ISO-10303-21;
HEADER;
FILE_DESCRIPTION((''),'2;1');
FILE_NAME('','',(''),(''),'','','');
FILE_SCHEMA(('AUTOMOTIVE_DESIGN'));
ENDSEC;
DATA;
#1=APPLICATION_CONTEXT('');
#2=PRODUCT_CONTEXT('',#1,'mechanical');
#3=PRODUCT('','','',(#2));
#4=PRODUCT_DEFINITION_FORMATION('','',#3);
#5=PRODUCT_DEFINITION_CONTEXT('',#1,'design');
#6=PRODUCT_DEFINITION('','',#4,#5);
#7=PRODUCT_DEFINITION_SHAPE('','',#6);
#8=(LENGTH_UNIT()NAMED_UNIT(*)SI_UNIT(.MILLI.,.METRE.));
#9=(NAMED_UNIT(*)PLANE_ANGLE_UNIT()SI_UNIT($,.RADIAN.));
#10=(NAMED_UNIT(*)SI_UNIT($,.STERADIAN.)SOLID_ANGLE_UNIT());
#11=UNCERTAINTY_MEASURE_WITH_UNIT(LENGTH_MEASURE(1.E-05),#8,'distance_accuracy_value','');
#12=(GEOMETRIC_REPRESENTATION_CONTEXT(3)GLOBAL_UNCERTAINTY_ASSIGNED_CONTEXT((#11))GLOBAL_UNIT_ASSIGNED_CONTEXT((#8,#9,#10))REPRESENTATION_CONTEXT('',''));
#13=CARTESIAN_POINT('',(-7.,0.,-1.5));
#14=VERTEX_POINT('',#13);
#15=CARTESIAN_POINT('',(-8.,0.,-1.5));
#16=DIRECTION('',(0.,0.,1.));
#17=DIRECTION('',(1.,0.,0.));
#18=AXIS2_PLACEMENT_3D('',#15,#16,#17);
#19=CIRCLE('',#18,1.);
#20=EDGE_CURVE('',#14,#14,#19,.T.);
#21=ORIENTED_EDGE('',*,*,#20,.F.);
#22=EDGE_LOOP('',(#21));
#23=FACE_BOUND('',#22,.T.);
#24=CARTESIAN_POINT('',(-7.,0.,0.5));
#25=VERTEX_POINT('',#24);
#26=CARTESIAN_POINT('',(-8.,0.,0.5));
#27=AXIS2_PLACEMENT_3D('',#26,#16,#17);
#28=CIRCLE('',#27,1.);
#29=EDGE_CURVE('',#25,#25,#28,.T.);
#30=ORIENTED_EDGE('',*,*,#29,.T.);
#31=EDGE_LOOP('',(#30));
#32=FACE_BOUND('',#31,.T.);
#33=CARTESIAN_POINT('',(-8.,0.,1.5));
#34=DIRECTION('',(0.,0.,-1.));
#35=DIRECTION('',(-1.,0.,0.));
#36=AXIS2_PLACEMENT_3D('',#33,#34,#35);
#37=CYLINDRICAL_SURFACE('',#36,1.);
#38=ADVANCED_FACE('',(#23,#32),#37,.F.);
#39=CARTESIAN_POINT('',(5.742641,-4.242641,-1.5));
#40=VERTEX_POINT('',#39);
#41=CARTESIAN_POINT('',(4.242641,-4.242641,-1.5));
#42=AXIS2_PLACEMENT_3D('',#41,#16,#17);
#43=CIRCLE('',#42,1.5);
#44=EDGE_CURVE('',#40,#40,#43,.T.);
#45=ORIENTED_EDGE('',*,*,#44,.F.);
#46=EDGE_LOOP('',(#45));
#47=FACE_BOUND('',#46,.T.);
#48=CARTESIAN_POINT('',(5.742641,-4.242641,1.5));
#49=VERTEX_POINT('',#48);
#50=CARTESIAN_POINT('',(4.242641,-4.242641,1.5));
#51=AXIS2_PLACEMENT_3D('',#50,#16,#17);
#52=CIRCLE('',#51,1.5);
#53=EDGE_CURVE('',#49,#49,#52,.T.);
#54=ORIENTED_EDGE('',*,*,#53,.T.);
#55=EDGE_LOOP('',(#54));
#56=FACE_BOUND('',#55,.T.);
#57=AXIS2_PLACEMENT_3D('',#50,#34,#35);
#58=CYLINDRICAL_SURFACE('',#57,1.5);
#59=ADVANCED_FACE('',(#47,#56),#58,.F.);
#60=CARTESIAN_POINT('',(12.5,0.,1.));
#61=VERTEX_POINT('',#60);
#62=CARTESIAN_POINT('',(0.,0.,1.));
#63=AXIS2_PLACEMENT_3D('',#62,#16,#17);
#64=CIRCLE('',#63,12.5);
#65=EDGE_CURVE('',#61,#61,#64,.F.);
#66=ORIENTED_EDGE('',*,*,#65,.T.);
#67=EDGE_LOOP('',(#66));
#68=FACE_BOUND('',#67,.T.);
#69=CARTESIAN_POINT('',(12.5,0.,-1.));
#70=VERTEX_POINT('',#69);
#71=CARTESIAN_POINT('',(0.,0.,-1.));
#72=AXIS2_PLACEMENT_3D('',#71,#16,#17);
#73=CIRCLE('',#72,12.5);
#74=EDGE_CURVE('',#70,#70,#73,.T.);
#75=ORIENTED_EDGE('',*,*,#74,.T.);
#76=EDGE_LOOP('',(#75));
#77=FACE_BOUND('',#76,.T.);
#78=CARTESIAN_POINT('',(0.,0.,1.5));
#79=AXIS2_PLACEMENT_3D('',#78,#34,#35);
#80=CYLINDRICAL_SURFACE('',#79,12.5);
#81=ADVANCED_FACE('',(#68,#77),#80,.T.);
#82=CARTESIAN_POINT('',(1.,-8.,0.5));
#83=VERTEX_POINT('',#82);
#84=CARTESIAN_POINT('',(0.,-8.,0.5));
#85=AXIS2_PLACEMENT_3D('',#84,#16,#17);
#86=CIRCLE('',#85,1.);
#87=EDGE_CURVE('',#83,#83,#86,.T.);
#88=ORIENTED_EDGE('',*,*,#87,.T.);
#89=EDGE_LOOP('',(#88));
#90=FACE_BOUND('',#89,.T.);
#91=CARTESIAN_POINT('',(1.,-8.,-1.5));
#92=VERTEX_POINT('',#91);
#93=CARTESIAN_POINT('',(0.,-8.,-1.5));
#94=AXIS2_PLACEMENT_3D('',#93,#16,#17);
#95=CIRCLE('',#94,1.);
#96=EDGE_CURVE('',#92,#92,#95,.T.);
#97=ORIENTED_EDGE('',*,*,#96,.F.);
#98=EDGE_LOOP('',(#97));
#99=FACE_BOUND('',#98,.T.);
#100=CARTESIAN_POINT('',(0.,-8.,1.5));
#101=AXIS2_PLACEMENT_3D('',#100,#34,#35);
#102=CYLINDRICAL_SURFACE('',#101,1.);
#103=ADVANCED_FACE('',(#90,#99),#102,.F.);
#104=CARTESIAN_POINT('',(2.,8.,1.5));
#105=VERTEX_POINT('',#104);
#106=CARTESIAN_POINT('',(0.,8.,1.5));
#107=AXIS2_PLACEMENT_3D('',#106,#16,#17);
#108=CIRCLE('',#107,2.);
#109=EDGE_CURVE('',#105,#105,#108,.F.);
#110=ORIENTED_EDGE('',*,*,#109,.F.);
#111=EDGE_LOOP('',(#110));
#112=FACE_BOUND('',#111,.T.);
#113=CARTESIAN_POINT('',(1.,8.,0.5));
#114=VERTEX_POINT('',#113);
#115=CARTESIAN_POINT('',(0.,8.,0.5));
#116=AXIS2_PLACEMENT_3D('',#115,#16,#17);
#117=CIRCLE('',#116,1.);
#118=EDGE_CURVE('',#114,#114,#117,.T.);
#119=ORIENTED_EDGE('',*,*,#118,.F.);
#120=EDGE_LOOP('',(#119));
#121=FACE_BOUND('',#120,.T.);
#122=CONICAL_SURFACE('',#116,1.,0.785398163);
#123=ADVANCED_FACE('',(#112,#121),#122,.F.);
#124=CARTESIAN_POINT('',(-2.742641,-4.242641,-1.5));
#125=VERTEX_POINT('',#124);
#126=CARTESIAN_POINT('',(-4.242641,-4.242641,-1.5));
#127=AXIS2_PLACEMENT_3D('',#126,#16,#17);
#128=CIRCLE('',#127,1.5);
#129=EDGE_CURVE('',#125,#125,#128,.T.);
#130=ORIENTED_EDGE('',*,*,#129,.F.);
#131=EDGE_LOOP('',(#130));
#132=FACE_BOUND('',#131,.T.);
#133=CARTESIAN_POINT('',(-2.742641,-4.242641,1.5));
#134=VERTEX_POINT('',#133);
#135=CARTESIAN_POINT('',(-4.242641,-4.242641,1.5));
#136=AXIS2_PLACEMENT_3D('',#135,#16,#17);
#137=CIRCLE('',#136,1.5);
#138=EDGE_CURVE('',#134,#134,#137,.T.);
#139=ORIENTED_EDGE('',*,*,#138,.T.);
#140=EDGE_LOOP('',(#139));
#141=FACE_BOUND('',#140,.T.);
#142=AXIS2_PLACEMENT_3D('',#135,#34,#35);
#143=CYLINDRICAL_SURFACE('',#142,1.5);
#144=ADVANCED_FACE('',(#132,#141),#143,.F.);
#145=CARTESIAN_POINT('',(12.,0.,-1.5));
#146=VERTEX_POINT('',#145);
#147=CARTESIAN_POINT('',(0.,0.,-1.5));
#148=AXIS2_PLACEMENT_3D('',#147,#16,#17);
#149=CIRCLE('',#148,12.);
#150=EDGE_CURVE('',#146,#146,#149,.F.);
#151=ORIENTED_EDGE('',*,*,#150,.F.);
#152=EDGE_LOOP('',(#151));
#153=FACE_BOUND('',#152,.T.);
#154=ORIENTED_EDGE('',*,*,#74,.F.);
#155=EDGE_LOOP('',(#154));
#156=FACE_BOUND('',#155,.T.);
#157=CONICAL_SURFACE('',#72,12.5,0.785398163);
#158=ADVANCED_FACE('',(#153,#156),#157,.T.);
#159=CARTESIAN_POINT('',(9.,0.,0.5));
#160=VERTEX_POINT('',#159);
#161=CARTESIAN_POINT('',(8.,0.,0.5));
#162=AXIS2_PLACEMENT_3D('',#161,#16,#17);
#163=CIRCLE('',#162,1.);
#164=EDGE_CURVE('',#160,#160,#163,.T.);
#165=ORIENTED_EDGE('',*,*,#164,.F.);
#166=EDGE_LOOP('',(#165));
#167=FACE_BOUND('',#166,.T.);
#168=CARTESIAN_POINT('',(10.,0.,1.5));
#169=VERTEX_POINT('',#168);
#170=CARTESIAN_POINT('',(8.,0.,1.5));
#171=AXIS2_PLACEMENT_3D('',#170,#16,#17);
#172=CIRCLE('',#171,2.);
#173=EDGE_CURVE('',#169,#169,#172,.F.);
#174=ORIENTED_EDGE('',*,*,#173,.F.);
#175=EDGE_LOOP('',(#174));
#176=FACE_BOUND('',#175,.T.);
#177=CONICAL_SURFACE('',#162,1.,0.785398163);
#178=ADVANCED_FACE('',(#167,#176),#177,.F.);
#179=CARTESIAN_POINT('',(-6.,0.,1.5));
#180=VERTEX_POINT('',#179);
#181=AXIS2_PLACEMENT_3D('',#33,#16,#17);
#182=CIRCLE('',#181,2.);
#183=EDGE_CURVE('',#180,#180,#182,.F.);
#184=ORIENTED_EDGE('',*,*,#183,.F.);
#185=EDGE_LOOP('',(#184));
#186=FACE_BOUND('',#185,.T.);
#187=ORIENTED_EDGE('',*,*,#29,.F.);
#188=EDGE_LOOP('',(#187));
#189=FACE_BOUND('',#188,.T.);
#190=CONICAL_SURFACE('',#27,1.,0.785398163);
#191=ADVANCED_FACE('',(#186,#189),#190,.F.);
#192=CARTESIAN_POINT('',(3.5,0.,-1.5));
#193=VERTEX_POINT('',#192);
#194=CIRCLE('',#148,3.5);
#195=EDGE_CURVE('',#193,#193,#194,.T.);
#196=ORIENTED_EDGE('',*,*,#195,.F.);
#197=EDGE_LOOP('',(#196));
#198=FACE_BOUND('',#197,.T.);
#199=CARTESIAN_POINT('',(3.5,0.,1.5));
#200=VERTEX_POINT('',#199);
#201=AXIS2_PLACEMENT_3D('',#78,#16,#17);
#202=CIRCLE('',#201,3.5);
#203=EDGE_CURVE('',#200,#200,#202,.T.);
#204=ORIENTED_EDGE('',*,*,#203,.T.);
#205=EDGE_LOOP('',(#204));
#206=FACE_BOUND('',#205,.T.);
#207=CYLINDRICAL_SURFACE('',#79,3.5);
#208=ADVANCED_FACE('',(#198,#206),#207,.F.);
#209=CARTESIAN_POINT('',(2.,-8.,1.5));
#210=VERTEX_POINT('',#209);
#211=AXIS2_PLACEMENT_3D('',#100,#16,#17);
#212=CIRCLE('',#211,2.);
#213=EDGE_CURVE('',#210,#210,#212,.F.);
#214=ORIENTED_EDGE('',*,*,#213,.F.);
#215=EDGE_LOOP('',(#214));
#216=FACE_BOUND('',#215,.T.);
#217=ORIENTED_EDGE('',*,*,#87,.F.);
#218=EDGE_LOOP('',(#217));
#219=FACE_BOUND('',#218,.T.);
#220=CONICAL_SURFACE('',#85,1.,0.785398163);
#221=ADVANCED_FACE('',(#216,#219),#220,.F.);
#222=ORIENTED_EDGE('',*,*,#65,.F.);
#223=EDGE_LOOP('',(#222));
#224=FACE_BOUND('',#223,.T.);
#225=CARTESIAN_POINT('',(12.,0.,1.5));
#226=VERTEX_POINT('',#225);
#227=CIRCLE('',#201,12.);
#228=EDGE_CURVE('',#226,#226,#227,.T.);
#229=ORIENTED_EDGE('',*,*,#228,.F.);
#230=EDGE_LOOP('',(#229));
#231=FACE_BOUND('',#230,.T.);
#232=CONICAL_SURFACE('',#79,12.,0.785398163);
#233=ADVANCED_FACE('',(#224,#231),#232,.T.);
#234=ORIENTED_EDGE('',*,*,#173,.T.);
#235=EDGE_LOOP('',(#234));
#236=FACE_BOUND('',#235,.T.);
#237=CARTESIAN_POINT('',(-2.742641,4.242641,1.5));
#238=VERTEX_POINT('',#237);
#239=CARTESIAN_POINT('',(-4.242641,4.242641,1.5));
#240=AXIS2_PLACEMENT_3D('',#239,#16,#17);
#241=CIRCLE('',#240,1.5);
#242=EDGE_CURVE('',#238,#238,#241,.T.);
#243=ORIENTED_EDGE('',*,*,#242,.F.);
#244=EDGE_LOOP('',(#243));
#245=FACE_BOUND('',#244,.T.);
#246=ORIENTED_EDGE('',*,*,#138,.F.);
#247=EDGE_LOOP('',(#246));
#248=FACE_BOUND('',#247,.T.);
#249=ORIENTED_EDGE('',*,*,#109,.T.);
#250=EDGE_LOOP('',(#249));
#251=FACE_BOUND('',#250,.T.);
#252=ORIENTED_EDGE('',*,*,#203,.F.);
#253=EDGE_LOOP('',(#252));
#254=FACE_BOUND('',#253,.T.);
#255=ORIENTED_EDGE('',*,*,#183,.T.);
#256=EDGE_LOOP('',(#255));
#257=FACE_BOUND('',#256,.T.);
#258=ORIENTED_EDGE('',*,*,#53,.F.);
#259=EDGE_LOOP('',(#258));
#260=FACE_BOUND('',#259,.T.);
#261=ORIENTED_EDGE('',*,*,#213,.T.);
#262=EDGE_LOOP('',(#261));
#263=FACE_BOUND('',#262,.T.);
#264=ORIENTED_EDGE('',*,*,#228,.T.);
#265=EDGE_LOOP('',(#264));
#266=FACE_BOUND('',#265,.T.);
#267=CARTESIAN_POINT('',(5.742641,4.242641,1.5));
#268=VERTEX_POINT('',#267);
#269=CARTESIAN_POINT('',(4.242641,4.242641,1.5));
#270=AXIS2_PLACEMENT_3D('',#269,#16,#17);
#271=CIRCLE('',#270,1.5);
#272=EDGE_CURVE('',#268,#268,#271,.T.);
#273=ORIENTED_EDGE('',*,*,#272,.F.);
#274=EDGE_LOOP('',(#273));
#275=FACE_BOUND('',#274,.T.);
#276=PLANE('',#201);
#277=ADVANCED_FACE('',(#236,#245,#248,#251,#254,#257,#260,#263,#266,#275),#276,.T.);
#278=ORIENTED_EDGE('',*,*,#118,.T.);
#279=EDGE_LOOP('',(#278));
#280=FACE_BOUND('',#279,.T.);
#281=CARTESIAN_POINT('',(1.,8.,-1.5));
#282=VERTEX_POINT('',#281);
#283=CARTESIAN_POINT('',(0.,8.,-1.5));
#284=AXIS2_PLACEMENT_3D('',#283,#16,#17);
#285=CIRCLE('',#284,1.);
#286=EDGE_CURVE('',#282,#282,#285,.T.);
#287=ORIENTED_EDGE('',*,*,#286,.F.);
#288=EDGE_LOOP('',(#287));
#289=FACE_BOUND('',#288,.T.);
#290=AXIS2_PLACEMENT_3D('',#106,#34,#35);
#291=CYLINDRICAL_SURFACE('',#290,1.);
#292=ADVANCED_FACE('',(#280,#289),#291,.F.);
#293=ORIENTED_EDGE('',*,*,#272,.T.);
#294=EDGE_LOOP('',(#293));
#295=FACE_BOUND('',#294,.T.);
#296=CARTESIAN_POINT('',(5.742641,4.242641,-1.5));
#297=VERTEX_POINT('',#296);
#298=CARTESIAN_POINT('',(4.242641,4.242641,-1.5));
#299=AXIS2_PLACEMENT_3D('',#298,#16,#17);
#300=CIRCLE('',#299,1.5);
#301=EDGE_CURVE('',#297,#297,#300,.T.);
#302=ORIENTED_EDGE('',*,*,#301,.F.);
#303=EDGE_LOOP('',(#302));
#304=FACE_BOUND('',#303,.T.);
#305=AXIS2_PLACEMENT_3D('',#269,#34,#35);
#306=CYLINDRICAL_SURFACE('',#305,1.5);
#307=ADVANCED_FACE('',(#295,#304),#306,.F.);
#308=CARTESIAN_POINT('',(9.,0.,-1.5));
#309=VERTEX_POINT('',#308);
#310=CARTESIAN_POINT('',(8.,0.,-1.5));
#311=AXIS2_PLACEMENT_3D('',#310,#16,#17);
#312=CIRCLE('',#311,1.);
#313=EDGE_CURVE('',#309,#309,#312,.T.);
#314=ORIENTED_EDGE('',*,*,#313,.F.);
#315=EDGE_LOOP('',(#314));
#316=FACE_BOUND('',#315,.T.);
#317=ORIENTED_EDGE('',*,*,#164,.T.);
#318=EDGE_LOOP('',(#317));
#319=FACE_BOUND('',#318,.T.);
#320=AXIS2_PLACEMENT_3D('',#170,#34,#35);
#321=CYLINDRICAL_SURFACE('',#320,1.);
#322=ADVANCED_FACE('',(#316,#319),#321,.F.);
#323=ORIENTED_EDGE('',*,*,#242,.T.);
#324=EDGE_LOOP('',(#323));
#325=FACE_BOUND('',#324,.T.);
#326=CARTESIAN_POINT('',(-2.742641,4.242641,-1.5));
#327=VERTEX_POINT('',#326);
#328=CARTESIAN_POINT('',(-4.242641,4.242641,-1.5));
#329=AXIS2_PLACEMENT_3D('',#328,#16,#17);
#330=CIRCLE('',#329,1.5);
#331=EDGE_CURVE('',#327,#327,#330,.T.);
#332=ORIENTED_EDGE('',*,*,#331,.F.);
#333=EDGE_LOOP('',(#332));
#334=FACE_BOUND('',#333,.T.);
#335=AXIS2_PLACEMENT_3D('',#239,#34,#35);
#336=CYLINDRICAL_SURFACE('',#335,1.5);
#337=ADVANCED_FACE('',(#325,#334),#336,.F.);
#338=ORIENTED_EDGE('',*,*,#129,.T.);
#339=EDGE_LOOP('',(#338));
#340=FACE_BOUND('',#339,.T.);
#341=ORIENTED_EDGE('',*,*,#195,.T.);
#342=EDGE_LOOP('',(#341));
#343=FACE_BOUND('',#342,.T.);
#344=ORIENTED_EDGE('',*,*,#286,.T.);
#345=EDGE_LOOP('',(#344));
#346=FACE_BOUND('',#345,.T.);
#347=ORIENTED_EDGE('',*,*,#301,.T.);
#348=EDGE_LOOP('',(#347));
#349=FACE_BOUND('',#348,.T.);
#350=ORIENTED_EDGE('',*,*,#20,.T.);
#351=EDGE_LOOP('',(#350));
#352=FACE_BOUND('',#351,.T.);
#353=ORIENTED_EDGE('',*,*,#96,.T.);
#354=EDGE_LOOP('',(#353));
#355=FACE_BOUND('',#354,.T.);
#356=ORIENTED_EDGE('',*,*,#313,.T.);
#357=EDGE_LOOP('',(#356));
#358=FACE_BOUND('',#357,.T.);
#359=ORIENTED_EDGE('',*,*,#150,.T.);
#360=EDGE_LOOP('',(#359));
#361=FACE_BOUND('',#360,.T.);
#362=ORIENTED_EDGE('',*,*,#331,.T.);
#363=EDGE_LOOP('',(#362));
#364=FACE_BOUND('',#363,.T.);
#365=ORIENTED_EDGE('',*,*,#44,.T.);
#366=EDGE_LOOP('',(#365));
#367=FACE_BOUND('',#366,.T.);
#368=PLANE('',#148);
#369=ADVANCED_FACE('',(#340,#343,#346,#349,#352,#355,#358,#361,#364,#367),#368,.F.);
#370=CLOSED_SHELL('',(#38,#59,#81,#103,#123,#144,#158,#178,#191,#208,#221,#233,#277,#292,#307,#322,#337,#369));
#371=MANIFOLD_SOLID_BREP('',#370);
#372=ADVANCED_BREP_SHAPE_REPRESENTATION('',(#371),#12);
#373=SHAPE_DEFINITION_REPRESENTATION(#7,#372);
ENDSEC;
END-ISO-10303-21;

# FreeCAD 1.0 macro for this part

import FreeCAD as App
import Part
import Sketcher

V = App.Vector


def edges_at(feature, points):
    """Names of the edges that pass closest to the given points."""
    edges = feature.Shape.Edges
    near = lambda p: min(range(len(edges)), key=lambda i: edges[i].distToShape(Part.Vertex(*p))[0])
    return sorted({f"Edge{near(p) + 1}" for p in points})

doc = App.newDocument("Part")
body = doc.addObject("PartDesign::Body", "Body")

sketch1 = body.newObject("Sketcher::SketchObject", "Sketch")
sketch1.AttachmentSupport = (doc.getObject("XY_Plane"), [""])
sketch1.MapMode = "FlatFace"
sketch1.addGeometry([
    Part.Circle(V(0, 0, 0), V(0, 0, 1), 12.5),
    Part.Circle(V(-4.2, -4.2, 0), V(0, 0, 1), 1.5),
    Part.Circle(V(0, -8, 0), V(0, 0, 1), 1),
    Part.Circle(V(4.2, -4.2, 0), V(0, 0, 1), 1.5),
    Part.Circle(V(-8, 0, 0), V(0, 0, 1), 1),
    Part.Circle(V(-4.2, 4.2, 0), V(0, 0, 1), 1.5),
    Part.Circle(V(0, 0, 0), V(0, 0, 1), 3.5),
    Part.Circle(V(4.2, 4.2, 0), V(0, 0, 1), 1.5),
    Part.Circle(V(8, 0, 0), V(0, 0, 1), 1),
    Part.Circle(V(0, 8, 0), V(0, 0, 1), 1),
], False)
sketch1.addConstraint([
    Sketcher.Constraint("Coincident", 0, 3, -1, 1),
    Sketcher.Constraint("Coincident", 6, 3, -1, 1),
    Sketcher.Constraint("Equal", 1, 3),
    Sketcher.Constraint("Equal", 2, 4),
    Sketcher.Constraint("Equal", 3, 5),
    Sketcher.Constraint("Equal", 5, 7),
    Sketcher.Constraint("Equal", 4, 8),
    Sketcher.Constraint("Equal", 8, 9),
    Sketcher.Constraint("Symmetric", 3, 3, 5, 3, -1, 1),
    Sketcher.Constraint("Symmetric", 1, 3, 7, 3, -1, 1),
    Sketcher.Constraint("Symmetric", 4, 3, 8, 3, -1, 1),
    Sketcher.Constraint("Symmetric", 2, 3, 9, 3, -1, 1),
    Sketcher.Constraint("Symmetric", 1, 3, 3, 3, -2),
    Sketcher.Constraint("PointOnObject", 2, 3, -2),
    Sketcher.Constraint("PointOnObject", 4, 3, -1),
    Sketcher.Constraint("Diameter", 0, 25.0),
    Sketcher.Constraint("Diameter", 1, 3.0),
    Sketcher.Constraint("Diameter", 2, 2.0),
    Sketcher.Constraint("Diameter", 6, 7.0),
    Sketcher.Constraint("DistanceY", 2, 3, -1, 1, 8.0),
    Sketcher.Constraint("DistanceX", 4, 3, -1, 1, 8.0),
    Sketcher.Constraint("DistanceX", 1, 3, -1, 1, 4.242641),
    Sketcher.Constraint("DistanceY", 1, 3, -1, 1, 4.242641),
])
pad1 = body.newObject("PartDesign::Pad", "Pad")
pad1.Profile = sketch1
pad1.Length = 3
pad1.Midplane = True
doc.recompute()

chamfer = body.newObject("PartDesign::Chamfer", "Chamfer")
chamfer.Base = (pad1, edges_at(pad1, [
    (-1, -8, 1.5),
    (-9, 0, 1.5),
    (-1, 8, 1.5),
    (7, 0, 1.5),
]))
chamfer.Size = 1
doc.recompute()

chamfer2 = body.newObject("PartDesign::Chamfer", "Chamfer001")
chamfer2.Base = (chamfer, edges_at(chamfer, [(-12.5, 0, -1.5), (-12.5, 0, 1.5)]))
chamfer2.Size = 0.5

doc.recompute()
